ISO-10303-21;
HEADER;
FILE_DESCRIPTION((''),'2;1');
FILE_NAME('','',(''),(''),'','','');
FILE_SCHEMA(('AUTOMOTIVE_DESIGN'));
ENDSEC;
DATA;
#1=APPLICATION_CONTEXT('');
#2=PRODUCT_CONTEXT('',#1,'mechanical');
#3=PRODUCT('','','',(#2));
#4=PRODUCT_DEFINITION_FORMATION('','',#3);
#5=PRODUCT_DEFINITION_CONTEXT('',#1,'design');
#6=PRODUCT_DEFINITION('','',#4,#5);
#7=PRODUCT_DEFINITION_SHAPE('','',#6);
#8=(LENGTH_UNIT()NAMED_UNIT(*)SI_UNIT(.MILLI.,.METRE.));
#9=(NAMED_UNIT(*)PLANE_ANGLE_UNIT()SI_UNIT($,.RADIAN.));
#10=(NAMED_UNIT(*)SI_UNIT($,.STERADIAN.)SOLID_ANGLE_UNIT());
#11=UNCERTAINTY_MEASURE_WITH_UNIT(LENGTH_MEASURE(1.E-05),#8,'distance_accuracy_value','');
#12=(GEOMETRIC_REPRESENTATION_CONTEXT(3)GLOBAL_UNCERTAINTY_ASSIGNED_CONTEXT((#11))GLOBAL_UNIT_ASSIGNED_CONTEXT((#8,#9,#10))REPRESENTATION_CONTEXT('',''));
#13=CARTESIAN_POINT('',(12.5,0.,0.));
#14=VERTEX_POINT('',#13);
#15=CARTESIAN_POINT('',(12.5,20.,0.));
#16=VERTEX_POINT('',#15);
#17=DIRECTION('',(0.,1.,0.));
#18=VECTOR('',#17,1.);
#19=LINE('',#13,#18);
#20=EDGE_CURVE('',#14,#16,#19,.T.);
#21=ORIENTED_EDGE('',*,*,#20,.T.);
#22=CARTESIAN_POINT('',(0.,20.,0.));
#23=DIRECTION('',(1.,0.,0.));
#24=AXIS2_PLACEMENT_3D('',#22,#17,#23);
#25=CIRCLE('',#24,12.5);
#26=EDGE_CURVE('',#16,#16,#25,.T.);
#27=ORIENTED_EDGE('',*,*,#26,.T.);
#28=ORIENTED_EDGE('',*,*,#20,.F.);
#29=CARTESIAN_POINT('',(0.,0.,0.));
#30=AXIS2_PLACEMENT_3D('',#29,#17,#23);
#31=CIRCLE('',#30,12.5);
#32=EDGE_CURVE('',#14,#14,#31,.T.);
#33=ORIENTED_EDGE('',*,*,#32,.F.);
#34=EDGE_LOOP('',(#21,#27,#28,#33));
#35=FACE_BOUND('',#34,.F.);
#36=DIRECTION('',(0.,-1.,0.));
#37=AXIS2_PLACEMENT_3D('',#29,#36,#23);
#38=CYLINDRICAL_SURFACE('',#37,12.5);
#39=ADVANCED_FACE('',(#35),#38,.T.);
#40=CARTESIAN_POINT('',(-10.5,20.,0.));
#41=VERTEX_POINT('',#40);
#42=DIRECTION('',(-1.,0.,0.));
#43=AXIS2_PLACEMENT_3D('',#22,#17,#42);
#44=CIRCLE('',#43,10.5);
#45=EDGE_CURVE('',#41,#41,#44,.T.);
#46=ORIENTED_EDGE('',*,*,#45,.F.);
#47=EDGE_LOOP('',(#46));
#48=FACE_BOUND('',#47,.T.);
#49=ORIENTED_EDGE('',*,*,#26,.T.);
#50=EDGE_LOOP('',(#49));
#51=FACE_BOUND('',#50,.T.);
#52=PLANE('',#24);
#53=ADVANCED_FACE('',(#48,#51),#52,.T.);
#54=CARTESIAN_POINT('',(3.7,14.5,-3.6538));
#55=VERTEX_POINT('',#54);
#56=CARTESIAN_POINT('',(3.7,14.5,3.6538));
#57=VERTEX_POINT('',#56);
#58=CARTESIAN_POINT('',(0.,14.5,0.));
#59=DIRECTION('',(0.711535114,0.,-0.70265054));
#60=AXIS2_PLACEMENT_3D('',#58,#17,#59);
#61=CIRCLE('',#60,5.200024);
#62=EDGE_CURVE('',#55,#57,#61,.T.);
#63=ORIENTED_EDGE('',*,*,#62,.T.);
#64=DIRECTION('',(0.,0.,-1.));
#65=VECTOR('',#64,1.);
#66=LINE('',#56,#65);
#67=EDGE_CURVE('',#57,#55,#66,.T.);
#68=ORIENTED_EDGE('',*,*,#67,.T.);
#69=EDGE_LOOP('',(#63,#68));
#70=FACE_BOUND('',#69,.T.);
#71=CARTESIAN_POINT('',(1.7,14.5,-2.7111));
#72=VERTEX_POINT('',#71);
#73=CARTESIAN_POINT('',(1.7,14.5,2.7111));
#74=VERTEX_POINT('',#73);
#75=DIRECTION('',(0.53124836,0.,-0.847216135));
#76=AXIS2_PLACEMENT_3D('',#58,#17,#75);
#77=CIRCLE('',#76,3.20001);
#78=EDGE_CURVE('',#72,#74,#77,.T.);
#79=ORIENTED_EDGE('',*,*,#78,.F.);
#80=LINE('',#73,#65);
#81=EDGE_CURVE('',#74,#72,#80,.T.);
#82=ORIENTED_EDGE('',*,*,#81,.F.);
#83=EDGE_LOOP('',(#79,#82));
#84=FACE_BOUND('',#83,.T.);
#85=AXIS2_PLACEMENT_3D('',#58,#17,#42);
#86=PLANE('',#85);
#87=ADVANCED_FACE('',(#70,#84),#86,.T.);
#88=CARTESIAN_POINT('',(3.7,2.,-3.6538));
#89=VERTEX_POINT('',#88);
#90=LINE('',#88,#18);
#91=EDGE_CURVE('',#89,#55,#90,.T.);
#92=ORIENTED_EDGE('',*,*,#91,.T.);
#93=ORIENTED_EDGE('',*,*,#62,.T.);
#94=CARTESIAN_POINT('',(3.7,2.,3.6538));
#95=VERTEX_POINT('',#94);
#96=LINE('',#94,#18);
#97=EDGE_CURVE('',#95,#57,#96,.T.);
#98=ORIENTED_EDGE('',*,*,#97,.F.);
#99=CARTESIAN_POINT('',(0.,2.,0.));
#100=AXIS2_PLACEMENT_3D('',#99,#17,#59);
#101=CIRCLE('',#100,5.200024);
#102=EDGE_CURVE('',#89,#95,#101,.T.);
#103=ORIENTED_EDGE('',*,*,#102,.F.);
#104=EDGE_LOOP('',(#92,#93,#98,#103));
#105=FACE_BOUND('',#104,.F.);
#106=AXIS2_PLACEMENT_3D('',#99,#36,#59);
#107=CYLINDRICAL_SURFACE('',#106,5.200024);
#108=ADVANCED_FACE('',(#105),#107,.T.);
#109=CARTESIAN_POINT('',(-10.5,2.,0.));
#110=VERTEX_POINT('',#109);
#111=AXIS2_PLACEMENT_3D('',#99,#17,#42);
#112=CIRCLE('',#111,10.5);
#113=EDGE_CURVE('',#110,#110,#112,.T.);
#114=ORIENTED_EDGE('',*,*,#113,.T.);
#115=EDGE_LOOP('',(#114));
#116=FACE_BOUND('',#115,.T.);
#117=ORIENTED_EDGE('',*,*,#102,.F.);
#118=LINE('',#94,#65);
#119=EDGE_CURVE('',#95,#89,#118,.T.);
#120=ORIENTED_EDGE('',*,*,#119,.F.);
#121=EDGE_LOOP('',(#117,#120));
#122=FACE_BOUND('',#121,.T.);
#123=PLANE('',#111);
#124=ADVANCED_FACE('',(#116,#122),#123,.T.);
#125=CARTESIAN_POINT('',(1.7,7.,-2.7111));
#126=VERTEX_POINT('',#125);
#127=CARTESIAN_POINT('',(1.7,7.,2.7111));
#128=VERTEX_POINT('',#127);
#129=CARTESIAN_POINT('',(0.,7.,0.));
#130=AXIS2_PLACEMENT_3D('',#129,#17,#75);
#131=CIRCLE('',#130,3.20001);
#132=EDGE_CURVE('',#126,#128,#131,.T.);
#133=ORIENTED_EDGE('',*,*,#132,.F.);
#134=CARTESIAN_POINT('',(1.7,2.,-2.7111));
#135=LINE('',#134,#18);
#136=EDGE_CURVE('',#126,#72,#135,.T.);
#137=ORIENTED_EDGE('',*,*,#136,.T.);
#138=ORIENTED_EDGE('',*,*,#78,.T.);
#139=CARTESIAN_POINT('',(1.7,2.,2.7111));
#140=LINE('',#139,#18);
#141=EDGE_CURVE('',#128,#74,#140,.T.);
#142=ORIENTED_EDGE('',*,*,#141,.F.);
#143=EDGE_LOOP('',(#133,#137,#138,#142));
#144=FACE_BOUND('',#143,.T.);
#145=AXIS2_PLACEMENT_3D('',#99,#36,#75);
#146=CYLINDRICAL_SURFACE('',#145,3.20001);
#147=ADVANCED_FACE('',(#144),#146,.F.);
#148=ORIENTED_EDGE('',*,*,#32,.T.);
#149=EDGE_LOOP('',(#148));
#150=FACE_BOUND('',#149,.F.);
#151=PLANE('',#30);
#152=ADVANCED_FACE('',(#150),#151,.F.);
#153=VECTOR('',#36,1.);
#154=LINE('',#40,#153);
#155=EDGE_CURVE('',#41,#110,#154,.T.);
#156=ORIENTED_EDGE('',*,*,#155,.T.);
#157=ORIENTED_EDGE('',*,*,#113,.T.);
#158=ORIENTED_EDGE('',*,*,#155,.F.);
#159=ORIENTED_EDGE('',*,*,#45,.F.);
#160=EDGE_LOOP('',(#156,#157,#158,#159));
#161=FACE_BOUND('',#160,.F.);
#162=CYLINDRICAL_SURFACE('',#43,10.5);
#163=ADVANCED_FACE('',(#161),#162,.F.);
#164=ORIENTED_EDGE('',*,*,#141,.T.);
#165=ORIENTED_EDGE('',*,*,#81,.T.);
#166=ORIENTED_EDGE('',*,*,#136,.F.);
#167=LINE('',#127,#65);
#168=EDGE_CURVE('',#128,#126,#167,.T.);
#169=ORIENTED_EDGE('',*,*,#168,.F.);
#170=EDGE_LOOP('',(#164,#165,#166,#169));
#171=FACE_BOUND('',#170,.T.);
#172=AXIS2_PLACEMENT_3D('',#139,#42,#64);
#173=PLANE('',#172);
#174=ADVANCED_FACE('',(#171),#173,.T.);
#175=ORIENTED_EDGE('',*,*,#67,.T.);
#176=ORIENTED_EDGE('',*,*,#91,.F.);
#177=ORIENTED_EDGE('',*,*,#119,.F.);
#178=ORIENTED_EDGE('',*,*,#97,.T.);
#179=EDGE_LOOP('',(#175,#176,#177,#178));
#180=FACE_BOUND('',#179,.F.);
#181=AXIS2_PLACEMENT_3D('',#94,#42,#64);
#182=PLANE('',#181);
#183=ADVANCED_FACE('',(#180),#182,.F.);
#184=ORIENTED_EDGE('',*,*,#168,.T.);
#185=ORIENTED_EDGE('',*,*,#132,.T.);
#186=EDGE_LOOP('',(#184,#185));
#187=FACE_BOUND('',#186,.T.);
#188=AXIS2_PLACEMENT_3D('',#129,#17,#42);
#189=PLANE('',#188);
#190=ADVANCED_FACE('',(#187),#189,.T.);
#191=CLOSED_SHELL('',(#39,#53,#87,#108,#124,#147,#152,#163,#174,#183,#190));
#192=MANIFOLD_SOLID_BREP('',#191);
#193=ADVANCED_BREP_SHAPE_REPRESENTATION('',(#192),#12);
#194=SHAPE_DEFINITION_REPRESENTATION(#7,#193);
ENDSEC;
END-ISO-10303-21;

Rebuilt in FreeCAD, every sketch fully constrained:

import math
import FreeCAD as App
import Part
import Sketcher

doc = App.newDocument("Part")
body = doc.addObject("PartDesign::Body", "Body")

# Sketch on XZ plane
sketch1 = doc.addObject("Sketcher::SketchObject", "Sketch")
body.addObject(sketch1)
sketch1.AttachmentSupport = (doc.XZ_Plane, [""])
sketch1.MapMode = "FlatFace"
sketch1.addGeometry(Part.Circle(App.Vector(0, 0, 0), App.Vector(0, 0, 1), 12), False)
sketch1.addConstraint(Sketcher.Constraint("Coincident", 0, 3, -1, 1))
sketch1.addConstraint(Sketcher.Constraint("Diameter", 0, 25.0))
pad1 = doc.addObject("PartDesign::Pad", "Pad")
body.addObject(pad1)
pad1.Profile = sketch1
pad1.Length = 20
pad1.Reversed = True

# Sketch on XZ plane
sketch2 = doc.addObject("Sketcher::SketchObject", "Sketch001")
body.addObject(sketch2)
sketch2.AttachmentSupport = (doc.XZ_Plane, [""])
sketch2.MapMode = "FlatFace"
sketch2.AttachmentOffset = App.Placement(App.Vector(0, 0, -20), App.Rotation())
sketch2.addGeometry(Part.Circle(App.Vector(0, 0, 0), App.Vector(0, 0, 1), 10), False)
sketch2.addConstraint(Sketcher.Constraint("Coincident", 0, 3, -1, 1))
sketch2.addConstraint(Sketcher.Constraint("Diameter", 0, 21.0))
pocket1 = doc.addObject("PartDesign::Pocket", "Pocket")
body.addObject(pocket1)
pocket1.Profile = sketch2
pocket1.Length = 18
pocket1.Reversed = True

# Sketch on XZ plane
sketch3 = doc.addObject("Sketcher::SketchObject", "Sketch002")
body.addObject(sketch3)
sketch3.AttachmentSupport = (doc.XZ_Plane, [""])
sketch3.MapMode = "FlatFace"
sketch3.AttachmentOffset = App.Placement(App.Vector(0, 0, -2), App.Rotation())
sketch3.addGeometry(Part.LineSegment(App.Vector(3.7, 3.7, 0), App.Vector(3.7, -3.7, 0)), False)
sketch3.addGeometry(Part.ArcOfCircle(Part.Circle(App.Vector(0, 0, 0), App.Vector(0, 0, 1), 5.2), math.radians(45), math.radians(315)), False)
sketch3.addGeometry(Part.LineSegment(App.Vector(1.7, -2.7, 0), App.Vector(1.7, 2.7, 0)), False)
sketch3.addGeometry(Part.ArcOfCircle(Part.Circle(App.Vector(0, 0, 0), App.Vector(0, 0, 1), 3.2), math.radians(58), math.radians(302)), False)
sketch3.addConstraint(Sketcher.Constraint("Coincident", 0, 1, 1, 1))
sketch3.addConstraint(Sketcher.Constraint("Coincident", 1, 2, 0, 2))
sketch3.addConstraint(Sketcher.Constraint("Coincident", 2, 1, 3, 2))
sketch3.addConstraint(Sketcher.Constraint("Coincident", 3, 1, 2, 2))
sketch3.addConstraint(Sketcher.Constraint("Vertical", 0))
sketch3.addConstraint(Sketcher.Constraint("Vertical", 2))
sketch3.addConstraint(Sketcher.Constraint("Coincident", 1, 3, -1, 1))
sketch3.addConstraint(Sketcher.Constraint("Coincident", 3, 3, -1, 1))
sketch3.addConstraint(Sketcher.Constraint("Radius", 3, 3.2))
sketch3.addConstraint(Sketcher.Constraint("DistanceX", 2, 1, 1, 2, 2.0))
sketch3.addConstraint(Sketcher.Constraint("DistanceX", -1, 1, 2, 1, 1.7))
sketch3.addConstraint(Sketcher.Constraint("Radius", 1, 5.2))
pad2 = doc.addObject("PartDesign::Pad", "Pad001")
body.addObject(pad2)
pad2.Profile = sketch3
pad2.Length = 12.5
pad2.Reversed = True

# Sketch on XZ plane
sketch4 = doc.addObject("Sketcher::SketchObject", "Sketch003")
body.addObject(sketch4)
sketch4.AttachmentSupport = (doc.XZ_Plane, [""])
sketch4.MapMode = "FlatFace"
sketch4.AttachmentOffset = App.Placement(App.Vector(0, 0, -2), App.Rotation())
sketch4.addGeometry(Part.ArcOfCircle(Part.Circle(App.Vector(0, 0, 0), App.Vector(0, 0, 1), 3.2), math.radians(58), math.radians(302)), False)
sketch4.addGeometry(Part.LineSegment(App.Vector(1.7, 2.7, 0), App.Vector(1.7, -2.7, 0)), False)
sketch4.addConstraint(Sketcher.Constraint("Coincident", 0, 1, 1, 1))
sketch4.addConstraint(Sketcher.Constraint("Coincident", 1, 2, 0, 2))
sketch4.addConstraint(Sketcher.Constraint("Vertical", 1))
sketch4.addConstraint(Sketcher.Constraint("Coincident", 0, 3, -1, 1))
sketch4.addConstraint(Sketcher.Constraint("Radius", 0, 3.2))
sketch4.addConstraint(Sketcher.Constraint("DistanceX", -1, 1, 0, 1, 1.7))
pad3 = doc.addObject("PartDesign::Pad", "Pad002")
body.addObject(pad3)
pad3.Profile = sketch4
pad3.Length = 5
pad3.Reversed = True

doc.recompute()
